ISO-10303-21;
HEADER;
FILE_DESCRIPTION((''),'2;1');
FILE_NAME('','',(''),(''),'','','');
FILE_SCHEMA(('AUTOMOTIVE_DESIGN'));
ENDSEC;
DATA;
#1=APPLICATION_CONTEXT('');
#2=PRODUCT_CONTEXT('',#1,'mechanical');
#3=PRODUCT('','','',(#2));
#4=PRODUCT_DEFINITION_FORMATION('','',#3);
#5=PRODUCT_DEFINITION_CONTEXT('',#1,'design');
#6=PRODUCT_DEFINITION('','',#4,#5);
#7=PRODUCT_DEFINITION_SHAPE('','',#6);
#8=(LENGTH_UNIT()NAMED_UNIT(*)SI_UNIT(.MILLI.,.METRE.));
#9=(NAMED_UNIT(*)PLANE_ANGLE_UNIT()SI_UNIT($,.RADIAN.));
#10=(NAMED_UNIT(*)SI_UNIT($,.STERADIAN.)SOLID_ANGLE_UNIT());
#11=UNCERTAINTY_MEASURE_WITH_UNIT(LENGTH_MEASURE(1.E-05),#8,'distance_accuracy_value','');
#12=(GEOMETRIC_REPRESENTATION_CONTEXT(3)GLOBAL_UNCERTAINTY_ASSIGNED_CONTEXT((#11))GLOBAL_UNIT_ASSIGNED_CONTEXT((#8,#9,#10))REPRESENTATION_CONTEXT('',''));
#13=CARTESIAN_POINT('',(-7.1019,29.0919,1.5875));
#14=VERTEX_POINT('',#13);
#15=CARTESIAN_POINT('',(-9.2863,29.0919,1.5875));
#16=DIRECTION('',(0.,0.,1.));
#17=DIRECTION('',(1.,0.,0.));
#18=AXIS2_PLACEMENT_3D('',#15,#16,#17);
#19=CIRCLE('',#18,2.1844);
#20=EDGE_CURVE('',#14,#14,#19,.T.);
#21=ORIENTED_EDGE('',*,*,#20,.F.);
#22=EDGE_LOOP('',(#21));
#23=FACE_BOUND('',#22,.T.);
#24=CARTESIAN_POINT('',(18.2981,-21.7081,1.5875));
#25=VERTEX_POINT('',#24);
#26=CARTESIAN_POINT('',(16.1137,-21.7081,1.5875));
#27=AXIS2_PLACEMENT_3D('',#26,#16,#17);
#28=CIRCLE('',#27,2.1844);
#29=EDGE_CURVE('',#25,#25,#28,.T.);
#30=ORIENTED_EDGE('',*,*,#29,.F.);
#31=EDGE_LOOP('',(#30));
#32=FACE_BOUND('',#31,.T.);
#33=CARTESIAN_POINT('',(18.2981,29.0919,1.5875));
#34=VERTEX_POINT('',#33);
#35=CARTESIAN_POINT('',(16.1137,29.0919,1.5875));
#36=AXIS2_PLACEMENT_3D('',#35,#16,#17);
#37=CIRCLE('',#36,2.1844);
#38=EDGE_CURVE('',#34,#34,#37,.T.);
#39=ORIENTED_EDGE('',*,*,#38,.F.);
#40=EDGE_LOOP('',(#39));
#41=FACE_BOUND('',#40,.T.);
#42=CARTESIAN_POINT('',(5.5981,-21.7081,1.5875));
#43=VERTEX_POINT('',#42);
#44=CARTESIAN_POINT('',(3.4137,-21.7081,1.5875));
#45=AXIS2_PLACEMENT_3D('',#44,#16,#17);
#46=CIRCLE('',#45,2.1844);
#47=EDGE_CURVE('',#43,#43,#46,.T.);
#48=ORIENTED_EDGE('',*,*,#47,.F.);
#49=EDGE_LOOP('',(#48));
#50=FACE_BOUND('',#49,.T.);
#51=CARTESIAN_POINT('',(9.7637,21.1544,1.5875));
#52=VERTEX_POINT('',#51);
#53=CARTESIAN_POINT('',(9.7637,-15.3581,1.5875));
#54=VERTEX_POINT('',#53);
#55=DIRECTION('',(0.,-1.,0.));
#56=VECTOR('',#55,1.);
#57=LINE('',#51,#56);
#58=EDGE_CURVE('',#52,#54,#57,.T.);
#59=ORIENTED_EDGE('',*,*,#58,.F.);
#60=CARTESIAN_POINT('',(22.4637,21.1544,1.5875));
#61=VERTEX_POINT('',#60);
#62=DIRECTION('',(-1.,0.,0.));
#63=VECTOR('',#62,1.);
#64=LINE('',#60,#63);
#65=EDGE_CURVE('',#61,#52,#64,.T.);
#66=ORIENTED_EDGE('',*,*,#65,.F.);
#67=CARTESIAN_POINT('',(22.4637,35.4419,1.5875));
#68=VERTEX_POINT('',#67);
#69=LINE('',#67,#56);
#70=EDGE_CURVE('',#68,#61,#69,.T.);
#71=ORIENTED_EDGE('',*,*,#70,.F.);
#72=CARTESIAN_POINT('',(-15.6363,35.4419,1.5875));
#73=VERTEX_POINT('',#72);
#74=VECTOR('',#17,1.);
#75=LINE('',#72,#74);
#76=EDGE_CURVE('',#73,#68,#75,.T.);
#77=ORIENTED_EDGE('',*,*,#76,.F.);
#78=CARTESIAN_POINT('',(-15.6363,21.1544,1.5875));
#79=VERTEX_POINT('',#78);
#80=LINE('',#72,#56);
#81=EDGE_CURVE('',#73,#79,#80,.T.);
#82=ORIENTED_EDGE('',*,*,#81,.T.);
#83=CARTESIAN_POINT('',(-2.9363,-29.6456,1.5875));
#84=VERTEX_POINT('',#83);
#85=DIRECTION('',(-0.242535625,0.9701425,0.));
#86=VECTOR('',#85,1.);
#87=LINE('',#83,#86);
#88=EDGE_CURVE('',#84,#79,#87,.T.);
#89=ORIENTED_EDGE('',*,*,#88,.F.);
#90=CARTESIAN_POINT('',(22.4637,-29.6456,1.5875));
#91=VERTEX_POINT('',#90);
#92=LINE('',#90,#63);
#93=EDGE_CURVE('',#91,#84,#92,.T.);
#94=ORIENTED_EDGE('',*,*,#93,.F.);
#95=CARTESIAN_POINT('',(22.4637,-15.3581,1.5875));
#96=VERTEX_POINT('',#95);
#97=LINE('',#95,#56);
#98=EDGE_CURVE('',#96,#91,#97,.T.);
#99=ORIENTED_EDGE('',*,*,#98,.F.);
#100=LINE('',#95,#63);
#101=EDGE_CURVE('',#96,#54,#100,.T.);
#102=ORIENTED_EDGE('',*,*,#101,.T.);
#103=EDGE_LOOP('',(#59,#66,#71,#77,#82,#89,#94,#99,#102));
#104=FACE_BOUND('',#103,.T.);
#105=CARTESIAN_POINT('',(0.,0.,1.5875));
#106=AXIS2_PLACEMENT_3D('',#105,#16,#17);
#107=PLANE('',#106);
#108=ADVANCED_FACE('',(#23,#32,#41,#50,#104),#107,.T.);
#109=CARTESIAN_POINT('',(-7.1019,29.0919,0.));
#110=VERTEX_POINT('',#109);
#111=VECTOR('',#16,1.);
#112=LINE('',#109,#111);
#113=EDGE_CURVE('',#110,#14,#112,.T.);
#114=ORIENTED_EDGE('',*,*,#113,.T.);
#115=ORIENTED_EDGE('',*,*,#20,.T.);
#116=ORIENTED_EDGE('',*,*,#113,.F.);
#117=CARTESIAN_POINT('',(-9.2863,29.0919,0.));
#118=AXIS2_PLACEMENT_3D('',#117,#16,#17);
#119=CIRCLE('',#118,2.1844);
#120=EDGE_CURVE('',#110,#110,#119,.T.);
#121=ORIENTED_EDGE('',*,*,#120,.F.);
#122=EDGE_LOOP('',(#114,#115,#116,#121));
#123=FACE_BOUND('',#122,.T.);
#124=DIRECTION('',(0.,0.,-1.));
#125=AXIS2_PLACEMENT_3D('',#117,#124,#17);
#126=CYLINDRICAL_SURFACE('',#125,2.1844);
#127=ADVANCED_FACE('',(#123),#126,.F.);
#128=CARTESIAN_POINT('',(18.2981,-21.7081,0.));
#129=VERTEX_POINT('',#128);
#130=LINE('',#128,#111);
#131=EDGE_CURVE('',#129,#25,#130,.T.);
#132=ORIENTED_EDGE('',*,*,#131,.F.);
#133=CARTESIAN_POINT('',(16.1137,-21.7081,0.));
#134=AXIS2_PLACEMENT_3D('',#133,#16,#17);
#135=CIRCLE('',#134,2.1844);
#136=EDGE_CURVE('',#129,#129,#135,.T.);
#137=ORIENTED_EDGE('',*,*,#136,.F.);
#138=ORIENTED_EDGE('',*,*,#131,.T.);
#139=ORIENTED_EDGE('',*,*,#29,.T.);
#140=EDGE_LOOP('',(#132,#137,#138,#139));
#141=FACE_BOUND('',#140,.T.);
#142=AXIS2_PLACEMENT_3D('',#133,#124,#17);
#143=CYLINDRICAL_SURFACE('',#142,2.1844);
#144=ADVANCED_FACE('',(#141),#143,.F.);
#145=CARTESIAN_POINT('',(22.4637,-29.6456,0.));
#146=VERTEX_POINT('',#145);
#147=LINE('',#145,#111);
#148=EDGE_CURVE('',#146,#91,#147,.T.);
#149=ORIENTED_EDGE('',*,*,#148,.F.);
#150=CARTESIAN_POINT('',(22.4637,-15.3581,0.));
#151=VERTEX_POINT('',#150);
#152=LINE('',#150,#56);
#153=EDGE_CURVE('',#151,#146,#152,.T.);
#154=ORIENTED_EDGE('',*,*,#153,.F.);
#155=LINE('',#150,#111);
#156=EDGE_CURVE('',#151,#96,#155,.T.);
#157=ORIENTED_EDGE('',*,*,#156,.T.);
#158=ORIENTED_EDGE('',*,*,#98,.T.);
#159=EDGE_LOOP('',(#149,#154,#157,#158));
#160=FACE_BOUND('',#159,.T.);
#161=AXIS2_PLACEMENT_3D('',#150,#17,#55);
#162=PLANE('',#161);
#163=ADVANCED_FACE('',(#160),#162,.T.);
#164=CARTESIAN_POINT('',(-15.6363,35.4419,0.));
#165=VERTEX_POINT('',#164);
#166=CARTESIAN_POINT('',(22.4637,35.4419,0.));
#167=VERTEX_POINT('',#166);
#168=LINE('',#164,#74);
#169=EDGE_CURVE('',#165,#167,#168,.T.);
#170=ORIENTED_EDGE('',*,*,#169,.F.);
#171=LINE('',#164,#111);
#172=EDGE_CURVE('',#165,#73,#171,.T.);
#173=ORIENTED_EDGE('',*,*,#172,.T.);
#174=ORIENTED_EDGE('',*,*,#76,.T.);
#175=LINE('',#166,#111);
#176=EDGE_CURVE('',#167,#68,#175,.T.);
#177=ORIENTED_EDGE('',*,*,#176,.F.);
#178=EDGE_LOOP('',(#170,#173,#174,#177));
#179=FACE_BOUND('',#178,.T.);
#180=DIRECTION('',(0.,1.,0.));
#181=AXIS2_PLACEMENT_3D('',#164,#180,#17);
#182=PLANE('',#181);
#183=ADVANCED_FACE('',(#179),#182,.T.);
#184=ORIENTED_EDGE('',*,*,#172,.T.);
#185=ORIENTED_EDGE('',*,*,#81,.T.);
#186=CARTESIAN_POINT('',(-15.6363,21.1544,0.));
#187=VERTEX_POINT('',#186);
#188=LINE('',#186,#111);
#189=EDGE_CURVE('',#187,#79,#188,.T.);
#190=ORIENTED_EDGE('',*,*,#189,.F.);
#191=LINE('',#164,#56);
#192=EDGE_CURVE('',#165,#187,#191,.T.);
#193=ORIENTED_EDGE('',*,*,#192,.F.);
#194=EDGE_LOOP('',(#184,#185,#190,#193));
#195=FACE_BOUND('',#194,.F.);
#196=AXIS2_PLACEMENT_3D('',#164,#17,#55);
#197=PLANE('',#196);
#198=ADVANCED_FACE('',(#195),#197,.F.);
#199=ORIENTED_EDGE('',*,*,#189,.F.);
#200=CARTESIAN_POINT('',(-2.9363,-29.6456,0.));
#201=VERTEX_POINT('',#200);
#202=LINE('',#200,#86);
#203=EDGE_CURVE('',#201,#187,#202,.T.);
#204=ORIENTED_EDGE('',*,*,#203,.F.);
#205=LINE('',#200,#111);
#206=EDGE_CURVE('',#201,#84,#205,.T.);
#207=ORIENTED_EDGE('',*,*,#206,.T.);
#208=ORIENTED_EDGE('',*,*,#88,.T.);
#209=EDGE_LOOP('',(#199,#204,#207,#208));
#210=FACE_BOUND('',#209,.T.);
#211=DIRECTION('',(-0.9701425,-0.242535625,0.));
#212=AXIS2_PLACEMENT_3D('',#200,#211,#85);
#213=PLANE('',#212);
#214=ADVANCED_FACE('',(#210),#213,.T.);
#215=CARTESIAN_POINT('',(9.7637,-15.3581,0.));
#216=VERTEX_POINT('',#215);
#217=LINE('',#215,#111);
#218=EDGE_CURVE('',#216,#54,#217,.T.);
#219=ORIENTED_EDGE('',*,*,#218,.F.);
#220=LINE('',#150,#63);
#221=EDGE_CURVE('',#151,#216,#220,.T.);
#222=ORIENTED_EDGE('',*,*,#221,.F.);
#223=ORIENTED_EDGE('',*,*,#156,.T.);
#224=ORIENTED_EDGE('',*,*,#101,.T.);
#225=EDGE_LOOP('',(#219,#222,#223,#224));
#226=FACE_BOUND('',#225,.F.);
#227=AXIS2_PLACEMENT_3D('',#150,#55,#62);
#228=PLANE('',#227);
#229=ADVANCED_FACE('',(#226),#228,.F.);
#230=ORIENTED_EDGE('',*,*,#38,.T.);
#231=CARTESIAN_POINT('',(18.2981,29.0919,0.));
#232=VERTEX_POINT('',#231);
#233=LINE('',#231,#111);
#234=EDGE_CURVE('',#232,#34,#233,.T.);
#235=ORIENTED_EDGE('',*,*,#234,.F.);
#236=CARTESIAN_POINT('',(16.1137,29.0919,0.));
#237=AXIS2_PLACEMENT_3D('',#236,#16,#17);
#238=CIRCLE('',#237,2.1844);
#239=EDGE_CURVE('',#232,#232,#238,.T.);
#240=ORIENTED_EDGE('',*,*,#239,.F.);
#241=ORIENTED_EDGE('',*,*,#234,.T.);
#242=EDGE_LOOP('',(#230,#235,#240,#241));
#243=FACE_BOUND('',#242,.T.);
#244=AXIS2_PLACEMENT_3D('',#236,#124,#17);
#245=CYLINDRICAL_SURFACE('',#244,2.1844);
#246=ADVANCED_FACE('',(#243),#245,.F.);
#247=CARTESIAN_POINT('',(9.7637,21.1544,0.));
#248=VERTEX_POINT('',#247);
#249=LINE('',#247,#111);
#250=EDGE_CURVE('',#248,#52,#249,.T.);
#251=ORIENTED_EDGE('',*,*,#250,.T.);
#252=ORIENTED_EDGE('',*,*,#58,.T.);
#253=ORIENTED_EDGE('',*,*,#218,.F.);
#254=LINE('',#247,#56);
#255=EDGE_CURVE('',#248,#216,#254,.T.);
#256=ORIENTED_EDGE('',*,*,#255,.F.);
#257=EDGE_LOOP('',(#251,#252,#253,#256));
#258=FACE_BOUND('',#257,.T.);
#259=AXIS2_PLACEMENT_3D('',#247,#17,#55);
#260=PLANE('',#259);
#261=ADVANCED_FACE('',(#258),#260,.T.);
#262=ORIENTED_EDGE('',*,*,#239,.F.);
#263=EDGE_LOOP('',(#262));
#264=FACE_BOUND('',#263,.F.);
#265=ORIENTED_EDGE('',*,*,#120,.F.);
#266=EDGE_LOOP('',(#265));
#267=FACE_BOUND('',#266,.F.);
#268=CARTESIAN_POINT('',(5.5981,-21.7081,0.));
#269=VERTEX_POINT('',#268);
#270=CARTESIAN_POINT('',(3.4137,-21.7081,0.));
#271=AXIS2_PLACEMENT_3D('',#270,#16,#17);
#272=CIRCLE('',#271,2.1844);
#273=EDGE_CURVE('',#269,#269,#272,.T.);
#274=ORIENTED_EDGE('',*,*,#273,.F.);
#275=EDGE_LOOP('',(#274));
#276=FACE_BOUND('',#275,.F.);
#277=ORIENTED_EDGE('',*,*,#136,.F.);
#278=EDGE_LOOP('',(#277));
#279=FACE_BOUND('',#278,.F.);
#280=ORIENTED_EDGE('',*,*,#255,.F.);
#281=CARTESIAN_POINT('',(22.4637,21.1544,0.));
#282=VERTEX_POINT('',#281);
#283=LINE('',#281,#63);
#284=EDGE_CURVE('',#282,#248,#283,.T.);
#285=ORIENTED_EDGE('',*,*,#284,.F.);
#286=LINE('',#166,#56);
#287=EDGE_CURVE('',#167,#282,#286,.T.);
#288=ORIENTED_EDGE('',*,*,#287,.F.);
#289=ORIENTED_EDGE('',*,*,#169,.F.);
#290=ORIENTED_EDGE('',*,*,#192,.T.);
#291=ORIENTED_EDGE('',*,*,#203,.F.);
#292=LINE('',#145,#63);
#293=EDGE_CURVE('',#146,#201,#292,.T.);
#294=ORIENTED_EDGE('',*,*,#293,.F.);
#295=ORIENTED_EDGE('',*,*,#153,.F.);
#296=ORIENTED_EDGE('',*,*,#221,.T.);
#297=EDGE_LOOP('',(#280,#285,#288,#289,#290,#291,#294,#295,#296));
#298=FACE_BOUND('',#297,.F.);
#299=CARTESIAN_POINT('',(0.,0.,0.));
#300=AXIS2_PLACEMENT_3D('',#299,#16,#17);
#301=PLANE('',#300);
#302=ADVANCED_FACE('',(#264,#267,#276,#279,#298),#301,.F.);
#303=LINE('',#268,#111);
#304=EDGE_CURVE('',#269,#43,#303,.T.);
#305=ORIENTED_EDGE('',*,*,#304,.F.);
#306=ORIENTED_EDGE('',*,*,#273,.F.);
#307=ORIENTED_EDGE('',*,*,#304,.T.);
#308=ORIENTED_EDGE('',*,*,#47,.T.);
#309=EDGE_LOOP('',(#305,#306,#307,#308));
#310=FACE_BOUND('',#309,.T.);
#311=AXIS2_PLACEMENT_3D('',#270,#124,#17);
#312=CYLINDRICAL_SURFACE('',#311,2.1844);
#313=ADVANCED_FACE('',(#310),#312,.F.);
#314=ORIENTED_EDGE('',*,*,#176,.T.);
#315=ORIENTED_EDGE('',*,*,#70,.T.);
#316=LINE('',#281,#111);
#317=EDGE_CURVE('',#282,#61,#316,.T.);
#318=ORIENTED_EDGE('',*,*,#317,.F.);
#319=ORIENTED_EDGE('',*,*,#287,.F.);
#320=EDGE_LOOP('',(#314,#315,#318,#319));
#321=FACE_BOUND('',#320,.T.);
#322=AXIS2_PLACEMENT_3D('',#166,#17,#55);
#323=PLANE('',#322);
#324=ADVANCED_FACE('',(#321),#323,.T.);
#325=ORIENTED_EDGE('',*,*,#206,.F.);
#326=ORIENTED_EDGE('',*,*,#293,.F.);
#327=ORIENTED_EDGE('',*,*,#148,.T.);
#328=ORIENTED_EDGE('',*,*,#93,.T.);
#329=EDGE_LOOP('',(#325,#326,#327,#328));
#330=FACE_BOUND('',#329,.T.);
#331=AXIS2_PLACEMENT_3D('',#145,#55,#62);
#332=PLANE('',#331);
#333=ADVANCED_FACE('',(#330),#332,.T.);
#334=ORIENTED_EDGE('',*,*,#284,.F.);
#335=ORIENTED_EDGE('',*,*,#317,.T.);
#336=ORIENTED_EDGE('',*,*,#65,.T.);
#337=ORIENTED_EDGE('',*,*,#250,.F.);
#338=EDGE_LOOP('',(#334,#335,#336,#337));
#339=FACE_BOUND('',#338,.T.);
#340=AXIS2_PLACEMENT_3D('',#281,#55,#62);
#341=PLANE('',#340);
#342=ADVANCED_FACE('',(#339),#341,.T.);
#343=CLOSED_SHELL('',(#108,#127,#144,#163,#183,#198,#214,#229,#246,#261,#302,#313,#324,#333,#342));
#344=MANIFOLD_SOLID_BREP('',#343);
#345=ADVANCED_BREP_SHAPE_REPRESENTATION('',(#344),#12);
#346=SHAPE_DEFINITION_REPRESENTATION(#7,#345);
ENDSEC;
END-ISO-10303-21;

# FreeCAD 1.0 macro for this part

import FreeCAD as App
import Part
import Sketcher
Q = App.Units.Quantity


def add_polygon(sketch, points):
    """Adds a closed chain of lines whose ends are joined by coincident constraints."""
    first, n = sketch.GeometryCount, len(points)
    for a, b in zip(points, points[1:] + points[:1]):
        sketch.addGeometry(Part.LineSegment(App.Vector(*a, 0), App.Vector(*b, 0)), False)
    for i in range(n):
        sketch.addConstraint(Sketcher.Constraint("Coincident", first + i, 2, first + (i + 1) % n, 1))

doc = App.newDocument("Part")
params = doc.addObject("Spreadsheet::Sheet", "Params")
for row, (alias, value) in enumerate([
    ("sketch1_width", "1.5 in"),
    ("sketch1_width2", "0.5 in"),
    ("sketch1_diameter", "0.172 in"),
    ("sketch1_height", "0.5625 in"),
    ("pad1_length", "0.0625 in"),
], start=1):
    params.set(f"A{row}", alias)
    params.set(f"B{row}", "=" + value)
    params.setAlias(f"B{row}", alias)

body = doc.addObject("PartDesign::Body", "Body")

# Sketch on XY plane
sketch1 = body.newObject("Sketcher::SketchObject", "Sketch")
sketch1.AttachmentSupport = (doc.getObject("XY_Plane"), [""])
sketch1.MapMode = "FlatFace"
add_polygon(sketch1, [(22.4637, 35.4419), (-15.6363, 35.4419), (-15.6363, 21.1544), (-2.9363, -29.6456), (22.4637, -29.6456), (22.4637, -15.3581), (9.7637, -15.3581), (9.7637, 21.1544), (22.4637, 21.1544)])  # lines 0-8
sketch1.addGeometry(Part.Circle(App.Vector(3.4137, -21.7081, 0), App.Vector(0, 0, 1), 2.1844), False)  # 9
sketch1.addGeometry(Part.Circle(App.Vector(16.1137, -21.7081, 0), App.Vector(0, 0, 1), 2.1844), False)  # 10
sketch1.addGeometry(Part.Circle(App.Vector(-9.2863, 29.0919, 0), App.Vector(0, 0, 1), 2.1844), False)  # 11
sketch1.addGeometry(Part.Circle(App.Vector(16.1137, 29.0919, 0), App.Vector(0, 0, 1), 2.1844), False)  # 12
sketch1.addConstraint(Sketcher.Constraint("Horizontal", 0))
sketch1.addConstraint(Sketcher.Constraint("Vertical", 1))
sketch1.addConstraint(Sketcher.Constraint("Horizontal", 3))
sketch1.addConstraint(Sketcher.Constraint("Vertical", 4))
sketch1.addConstraint(Sketcher.Constraint("Horizontal", 5))
sketch1.addConstraint(Sketcher.Constraint("Vertical", 6))
sketch1.addConstraint(Sketcher.Constraint("Horizontal", 7))
sketch1.addConstraint(Sketcher.Constraint("Vertical", 8))
sketch1.addConstraint(Sketcher.Constraint("Equal", 9, 10))
sketch1.addConstraint(Sketcher.Constraint("Equal", 10, 11))
sketch1.addConstraint(Sketcher.Constraint("Equal", 11, 12))
sketch1.addConstraint(Sketcher.Constraint("Horizontal", 9, 3, 10, 3))
sketch1.addConstraint(Sketcher.Constraint("Horizontal", 11, 3, 12, 3))
sketch1.addConstraint(Sketcher.Constraint("Horizontal", 1, 2, 6, 2))
sketch1.addConstraint(Sketcher.Constraint("Vertical", 10, 3, 12, 3))
sketch1.addConstraint(Sketcher.Constraint("Vertical", 4, 2, 7, 2))
sketch1.addConstraint(Sketcher.Constraint("Equal", 1, 4))
sketch1.addConstraint(Sketcher.Constraint("DistanceX", 0, 2, 0, 1, Q("1.5 in")))
sketch1.addConstraint(Sketcher.Constraint("DistanceX", 5, 2, 5, 1, Q("0.5 in")))
sketch1.addConstraint(Sketcher.Constraint("DistanceX", 9, 3, 10, 3, Q("0.5 in")))
sketch1.addConstraint(Sketcher.Constraint("DistanceX", 11, 3, 9, 3, Q("0.5 in")))
sketch1.addConstraint(Sketcher.Constraint("DistanceX", 1, 2, 2, 2, Q("0.5 in")))
sketch1.addConstraint(Sketcher.Constraint("Diameter", 9, Q("0.172 in")))
sketch1.addConstraint(Sketcher.Constraint("DistanceY", 9, 3, 11, 3, Q("2 in")))
sketch1.addConstraint(Sketcher.Constraint("DistanceY", 2, 2, 1, 2, Q("2 in")))
sketch1.addConstraint(Sketcher.Constraint("DistanceY", 1, 2, 1, 1, Q("0.5625 in")))
sketch1.addConstraint(Sketcher.Constraint("DistanceX", 0, 2, 11, 3, Q("0.25 in")))
sketch1.addConstraint(Sketcher.Constraint("DistanceY", 11, 3, 0, 2, Q("0.25 in")))
sketch1.addConstraint(Sketcher.Constraint("DistanceX", -1, 1, 9, 3, Q("0.1344 in")))
sketch1.addConstraint(Sketcher.Constraint("DistanceY", 9, 3, -1, 1, 21.708))
sketch1.setExpression("Constraints[26]", "Params.sketch1_width")
sketch1.setExpression("Constraints[27]", "Params.sketch1_width2")
sketch1.setExpression("Constraints[31]", "Params.sketch1_diameter")
sketch1.setExpression("Constraints[34]", "Params.sketch1_height")
pad1 = body.newObject("PartDesign::Pad", "Pad")
pad1.Profile = sketch1
pad1.setExpression("Length", "Params.pad1_length")

doc.recompute()
